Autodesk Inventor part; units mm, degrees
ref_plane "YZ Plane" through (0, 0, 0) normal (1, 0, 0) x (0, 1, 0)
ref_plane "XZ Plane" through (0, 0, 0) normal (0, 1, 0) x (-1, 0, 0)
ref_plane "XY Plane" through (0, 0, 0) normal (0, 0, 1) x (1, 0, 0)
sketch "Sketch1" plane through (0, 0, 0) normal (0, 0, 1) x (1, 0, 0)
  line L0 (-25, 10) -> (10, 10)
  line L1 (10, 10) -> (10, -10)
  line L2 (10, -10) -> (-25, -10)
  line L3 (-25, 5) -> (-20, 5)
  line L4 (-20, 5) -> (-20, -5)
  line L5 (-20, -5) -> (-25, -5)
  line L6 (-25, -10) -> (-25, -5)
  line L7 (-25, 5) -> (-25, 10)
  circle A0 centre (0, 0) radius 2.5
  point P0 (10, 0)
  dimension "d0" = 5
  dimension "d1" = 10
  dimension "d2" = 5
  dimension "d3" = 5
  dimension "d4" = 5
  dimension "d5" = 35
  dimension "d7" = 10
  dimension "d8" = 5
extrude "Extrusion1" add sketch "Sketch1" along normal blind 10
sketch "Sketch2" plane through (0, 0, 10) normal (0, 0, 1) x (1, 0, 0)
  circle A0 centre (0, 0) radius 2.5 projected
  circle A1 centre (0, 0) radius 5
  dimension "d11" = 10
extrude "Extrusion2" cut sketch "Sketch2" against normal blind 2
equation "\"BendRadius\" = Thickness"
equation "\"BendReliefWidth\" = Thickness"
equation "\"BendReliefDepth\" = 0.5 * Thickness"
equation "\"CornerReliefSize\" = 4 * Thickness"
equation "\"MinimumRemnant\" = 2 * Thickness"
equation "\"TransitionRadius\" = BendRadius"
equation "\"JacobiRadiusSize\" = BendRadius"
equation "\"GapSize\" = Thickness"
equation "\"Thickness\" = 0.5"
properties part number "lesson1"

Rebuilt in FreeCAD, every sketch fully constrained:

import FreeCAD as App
import Part
import Sketcher
from FreeCAD import Vector


def add_polygon(sketch, points):
    """Adds a closed chain of lines whose ends are joined by coincident constraints."""
    first, n = sketch.GeometryCount, len(points)
    for a, b in zip(points, points[1:] + points[:1]):
        sketch.addGeometry(Part.LineSegment(App.Vector(*a, 0), App.Vector(*b, 0)), False)
    for i in range(n):
        sketch.addConstraint(Sketcher.Constraint("Coincident", first + i, 2, first + (i + 1) % n, 1))

doc = App.newDocument("Part")
body = doc.addObject("PartDesign::Body", "Body")

# Sketch on XY plane
sketch1 = doc.addObject("Sketcher::SketchObject", "Sketch")
body.addObject(sketch1)
sketch1.AttachmentSupport = (doc.XY_Plane, [""])
sketch1.MapMode = "FlatFace"
add_polygon(sketch1, [(10, 10), (-25, 10), (-25, 5), (-20, 5), (-20, -5), (-25, -5), (-25, -10), (10, -10)])  # lines 0-7
sketch1.addGeometry(Part.Circle(Vector(0, 0, 0), Vector(0, 0, 1), 2.5), False)  # 8
sketch1.addConstraint(Sketcher.Constraint("Horizontal", 0))
sketch1.addConstraint(Sketcher.Constraint("Vertical", 1))
sketch1.addConstraint(Sketcher.Constraint("Horizontal", 2))
sketch1.addConstraint(Sketcher.Constraint("Vertical", 3))
sketch1.addConstraint(Sketcher.Constraint("Horizontal", 4))
sketch1.addConstraint(Sketcher.Constraint("Vertical", 5))
sketch1.addConstraint(Sketcher.Constraint("Horizontal", 6))
sketch1.addConstraint(Sketcher.Constraint("Vertical", 7))
sketch1.addConstraint(Sketcher.Constraint("Coincident", 8, 3, -1, 1))
sketch1.addConstraint(Sketcher.Constraint("Symmetric", 1, 2, 4, 2, -1))
sketch1.addConstraint(Sketcher.Constraint("Equal", 4, 1))
sketch1.addConstraint(Sketcher.Constraint("Equal", 1, 5))
sketch1.addConstraint(Sketcher.Constraint("Diameter", 8, 5.0))
sketch1.addConstraint(Sketcher.Constraint("DistanceX", 0, 2, 0, 1, 35.0))
sketch1.addConstraint(Sketcher.Constraint("DistanceX", 2, 1, 2, 2, 5.0))
sketch1.addConstraint(Sketcher.Constraint("DistanceY", 3, 2, 3, 1, 10.0))
sketch1.addConstraint(Sketcher.Constraint("DistanceX", -1, 1, 6, 2, 10.0))
pad1 = doc.addObject("PartDesign::Pad", "Pad")
body.addObject(pad1)
pad1.Profile = sketch1
pad1.Length = 10

# Sketch on XY plane
sketch2 = doc.addObject("Sketcher::SketchObject", "Sketch001")
body.addObject(sketch2)
sketch2.AttachmentSupport = (doc.XY_Plane, [""])
sketch2.MapMode = "FlatFace"
sketch2.AttachmentOffset = App.Placement(Vector(0, 0, 10), App.Rotation())
sketch2.addGeometry(Part.Circle(Vector(0, 0, 0), Vector(0, 0, 1), 5), False)
sketch2.addGeometry(Part.Circle(Vector(0, 0, 0), Vector(0, 0, 1), 2.5), False)
sketch2.addConstraint(Sketcher.Constraint("Coincident", 0, 3, -1, 1))
sketch2.addConstraint(Sketcher.Constraint("Coincident", 1, 3, -1, 1))
sketch2.addConstraint(Sketcher.Constraint("Diameter", 0, 10.0))
sketch2.addConstraint(Sketcher.Constraint("Diameter", 1, 5.0))
pocket1 = doc.addObject("PartDesign::Pocket", "Pocket")
body.addObject(pocket1)
pocket1.Profile = sketch2
pocket1.Length = 2

doc.recompute()
